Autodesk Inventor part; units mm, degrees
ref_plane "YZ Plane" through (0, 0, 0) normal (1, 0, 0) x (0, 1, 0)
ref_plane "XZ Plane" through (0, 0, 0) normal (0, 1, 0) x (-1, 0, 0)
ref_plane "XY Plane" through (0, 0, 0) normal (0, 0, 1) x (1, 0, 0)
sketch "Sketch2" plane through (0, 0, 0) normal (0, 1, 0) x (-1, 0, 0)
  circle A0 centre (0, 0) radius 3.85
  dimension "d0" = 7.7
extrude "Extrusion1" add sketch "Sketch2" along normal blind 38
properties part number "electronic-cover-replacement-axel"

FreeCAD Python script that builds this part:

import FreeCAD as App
import Part
import Sketcher
from FreeCAD import Vector
Q = App.Units.Quantity

doc = App.newDocument("Part")
params = doc.addObject("Spreadsheet::Sheet", "Params")
for row, (alias, value) in enumerate([
    ("sketch1_diameter", "7.7 mm"),
    ("pad1_length", "38 mm"),
], start=1):
    params.set(f"A{row}", alias)
    params.set(f"B{row}", "=" + value)
    params.setAlias(f"B{row}", alias)

body = doc.addObject("PartDesign::Body", "Body")

sketch1 = body.newObject("Sketcher::SketchObject", "Sketch")
sketch1.AttachmentSupport = (doc.getObject("XZ_Plane"), [""])
sketch1.MapMode = "FlatFace"
sketch1.addGeometry(Part.Circle(Vector(0, 0, 0), Vector(0, 0, 1), 3.9), False)
sketch1.addConstraint(Sketcher.Constraint("Coincident", 0, 3, -1, 1))
sketch1.addConstraint(Sketcher.Constraint("Diameter", 0, Q("7.7 mm")))
sketch1.setExpression("Constraints[1]", "Params.sketch1_diameter")
pad1 = body.newObject("PartDesign::Pad", "Pad")
pad1.Profile = sketch1
pad1.setExpression("Length", "Params.pad1_length")
pad1.Reversed = True

doc.recompute()
